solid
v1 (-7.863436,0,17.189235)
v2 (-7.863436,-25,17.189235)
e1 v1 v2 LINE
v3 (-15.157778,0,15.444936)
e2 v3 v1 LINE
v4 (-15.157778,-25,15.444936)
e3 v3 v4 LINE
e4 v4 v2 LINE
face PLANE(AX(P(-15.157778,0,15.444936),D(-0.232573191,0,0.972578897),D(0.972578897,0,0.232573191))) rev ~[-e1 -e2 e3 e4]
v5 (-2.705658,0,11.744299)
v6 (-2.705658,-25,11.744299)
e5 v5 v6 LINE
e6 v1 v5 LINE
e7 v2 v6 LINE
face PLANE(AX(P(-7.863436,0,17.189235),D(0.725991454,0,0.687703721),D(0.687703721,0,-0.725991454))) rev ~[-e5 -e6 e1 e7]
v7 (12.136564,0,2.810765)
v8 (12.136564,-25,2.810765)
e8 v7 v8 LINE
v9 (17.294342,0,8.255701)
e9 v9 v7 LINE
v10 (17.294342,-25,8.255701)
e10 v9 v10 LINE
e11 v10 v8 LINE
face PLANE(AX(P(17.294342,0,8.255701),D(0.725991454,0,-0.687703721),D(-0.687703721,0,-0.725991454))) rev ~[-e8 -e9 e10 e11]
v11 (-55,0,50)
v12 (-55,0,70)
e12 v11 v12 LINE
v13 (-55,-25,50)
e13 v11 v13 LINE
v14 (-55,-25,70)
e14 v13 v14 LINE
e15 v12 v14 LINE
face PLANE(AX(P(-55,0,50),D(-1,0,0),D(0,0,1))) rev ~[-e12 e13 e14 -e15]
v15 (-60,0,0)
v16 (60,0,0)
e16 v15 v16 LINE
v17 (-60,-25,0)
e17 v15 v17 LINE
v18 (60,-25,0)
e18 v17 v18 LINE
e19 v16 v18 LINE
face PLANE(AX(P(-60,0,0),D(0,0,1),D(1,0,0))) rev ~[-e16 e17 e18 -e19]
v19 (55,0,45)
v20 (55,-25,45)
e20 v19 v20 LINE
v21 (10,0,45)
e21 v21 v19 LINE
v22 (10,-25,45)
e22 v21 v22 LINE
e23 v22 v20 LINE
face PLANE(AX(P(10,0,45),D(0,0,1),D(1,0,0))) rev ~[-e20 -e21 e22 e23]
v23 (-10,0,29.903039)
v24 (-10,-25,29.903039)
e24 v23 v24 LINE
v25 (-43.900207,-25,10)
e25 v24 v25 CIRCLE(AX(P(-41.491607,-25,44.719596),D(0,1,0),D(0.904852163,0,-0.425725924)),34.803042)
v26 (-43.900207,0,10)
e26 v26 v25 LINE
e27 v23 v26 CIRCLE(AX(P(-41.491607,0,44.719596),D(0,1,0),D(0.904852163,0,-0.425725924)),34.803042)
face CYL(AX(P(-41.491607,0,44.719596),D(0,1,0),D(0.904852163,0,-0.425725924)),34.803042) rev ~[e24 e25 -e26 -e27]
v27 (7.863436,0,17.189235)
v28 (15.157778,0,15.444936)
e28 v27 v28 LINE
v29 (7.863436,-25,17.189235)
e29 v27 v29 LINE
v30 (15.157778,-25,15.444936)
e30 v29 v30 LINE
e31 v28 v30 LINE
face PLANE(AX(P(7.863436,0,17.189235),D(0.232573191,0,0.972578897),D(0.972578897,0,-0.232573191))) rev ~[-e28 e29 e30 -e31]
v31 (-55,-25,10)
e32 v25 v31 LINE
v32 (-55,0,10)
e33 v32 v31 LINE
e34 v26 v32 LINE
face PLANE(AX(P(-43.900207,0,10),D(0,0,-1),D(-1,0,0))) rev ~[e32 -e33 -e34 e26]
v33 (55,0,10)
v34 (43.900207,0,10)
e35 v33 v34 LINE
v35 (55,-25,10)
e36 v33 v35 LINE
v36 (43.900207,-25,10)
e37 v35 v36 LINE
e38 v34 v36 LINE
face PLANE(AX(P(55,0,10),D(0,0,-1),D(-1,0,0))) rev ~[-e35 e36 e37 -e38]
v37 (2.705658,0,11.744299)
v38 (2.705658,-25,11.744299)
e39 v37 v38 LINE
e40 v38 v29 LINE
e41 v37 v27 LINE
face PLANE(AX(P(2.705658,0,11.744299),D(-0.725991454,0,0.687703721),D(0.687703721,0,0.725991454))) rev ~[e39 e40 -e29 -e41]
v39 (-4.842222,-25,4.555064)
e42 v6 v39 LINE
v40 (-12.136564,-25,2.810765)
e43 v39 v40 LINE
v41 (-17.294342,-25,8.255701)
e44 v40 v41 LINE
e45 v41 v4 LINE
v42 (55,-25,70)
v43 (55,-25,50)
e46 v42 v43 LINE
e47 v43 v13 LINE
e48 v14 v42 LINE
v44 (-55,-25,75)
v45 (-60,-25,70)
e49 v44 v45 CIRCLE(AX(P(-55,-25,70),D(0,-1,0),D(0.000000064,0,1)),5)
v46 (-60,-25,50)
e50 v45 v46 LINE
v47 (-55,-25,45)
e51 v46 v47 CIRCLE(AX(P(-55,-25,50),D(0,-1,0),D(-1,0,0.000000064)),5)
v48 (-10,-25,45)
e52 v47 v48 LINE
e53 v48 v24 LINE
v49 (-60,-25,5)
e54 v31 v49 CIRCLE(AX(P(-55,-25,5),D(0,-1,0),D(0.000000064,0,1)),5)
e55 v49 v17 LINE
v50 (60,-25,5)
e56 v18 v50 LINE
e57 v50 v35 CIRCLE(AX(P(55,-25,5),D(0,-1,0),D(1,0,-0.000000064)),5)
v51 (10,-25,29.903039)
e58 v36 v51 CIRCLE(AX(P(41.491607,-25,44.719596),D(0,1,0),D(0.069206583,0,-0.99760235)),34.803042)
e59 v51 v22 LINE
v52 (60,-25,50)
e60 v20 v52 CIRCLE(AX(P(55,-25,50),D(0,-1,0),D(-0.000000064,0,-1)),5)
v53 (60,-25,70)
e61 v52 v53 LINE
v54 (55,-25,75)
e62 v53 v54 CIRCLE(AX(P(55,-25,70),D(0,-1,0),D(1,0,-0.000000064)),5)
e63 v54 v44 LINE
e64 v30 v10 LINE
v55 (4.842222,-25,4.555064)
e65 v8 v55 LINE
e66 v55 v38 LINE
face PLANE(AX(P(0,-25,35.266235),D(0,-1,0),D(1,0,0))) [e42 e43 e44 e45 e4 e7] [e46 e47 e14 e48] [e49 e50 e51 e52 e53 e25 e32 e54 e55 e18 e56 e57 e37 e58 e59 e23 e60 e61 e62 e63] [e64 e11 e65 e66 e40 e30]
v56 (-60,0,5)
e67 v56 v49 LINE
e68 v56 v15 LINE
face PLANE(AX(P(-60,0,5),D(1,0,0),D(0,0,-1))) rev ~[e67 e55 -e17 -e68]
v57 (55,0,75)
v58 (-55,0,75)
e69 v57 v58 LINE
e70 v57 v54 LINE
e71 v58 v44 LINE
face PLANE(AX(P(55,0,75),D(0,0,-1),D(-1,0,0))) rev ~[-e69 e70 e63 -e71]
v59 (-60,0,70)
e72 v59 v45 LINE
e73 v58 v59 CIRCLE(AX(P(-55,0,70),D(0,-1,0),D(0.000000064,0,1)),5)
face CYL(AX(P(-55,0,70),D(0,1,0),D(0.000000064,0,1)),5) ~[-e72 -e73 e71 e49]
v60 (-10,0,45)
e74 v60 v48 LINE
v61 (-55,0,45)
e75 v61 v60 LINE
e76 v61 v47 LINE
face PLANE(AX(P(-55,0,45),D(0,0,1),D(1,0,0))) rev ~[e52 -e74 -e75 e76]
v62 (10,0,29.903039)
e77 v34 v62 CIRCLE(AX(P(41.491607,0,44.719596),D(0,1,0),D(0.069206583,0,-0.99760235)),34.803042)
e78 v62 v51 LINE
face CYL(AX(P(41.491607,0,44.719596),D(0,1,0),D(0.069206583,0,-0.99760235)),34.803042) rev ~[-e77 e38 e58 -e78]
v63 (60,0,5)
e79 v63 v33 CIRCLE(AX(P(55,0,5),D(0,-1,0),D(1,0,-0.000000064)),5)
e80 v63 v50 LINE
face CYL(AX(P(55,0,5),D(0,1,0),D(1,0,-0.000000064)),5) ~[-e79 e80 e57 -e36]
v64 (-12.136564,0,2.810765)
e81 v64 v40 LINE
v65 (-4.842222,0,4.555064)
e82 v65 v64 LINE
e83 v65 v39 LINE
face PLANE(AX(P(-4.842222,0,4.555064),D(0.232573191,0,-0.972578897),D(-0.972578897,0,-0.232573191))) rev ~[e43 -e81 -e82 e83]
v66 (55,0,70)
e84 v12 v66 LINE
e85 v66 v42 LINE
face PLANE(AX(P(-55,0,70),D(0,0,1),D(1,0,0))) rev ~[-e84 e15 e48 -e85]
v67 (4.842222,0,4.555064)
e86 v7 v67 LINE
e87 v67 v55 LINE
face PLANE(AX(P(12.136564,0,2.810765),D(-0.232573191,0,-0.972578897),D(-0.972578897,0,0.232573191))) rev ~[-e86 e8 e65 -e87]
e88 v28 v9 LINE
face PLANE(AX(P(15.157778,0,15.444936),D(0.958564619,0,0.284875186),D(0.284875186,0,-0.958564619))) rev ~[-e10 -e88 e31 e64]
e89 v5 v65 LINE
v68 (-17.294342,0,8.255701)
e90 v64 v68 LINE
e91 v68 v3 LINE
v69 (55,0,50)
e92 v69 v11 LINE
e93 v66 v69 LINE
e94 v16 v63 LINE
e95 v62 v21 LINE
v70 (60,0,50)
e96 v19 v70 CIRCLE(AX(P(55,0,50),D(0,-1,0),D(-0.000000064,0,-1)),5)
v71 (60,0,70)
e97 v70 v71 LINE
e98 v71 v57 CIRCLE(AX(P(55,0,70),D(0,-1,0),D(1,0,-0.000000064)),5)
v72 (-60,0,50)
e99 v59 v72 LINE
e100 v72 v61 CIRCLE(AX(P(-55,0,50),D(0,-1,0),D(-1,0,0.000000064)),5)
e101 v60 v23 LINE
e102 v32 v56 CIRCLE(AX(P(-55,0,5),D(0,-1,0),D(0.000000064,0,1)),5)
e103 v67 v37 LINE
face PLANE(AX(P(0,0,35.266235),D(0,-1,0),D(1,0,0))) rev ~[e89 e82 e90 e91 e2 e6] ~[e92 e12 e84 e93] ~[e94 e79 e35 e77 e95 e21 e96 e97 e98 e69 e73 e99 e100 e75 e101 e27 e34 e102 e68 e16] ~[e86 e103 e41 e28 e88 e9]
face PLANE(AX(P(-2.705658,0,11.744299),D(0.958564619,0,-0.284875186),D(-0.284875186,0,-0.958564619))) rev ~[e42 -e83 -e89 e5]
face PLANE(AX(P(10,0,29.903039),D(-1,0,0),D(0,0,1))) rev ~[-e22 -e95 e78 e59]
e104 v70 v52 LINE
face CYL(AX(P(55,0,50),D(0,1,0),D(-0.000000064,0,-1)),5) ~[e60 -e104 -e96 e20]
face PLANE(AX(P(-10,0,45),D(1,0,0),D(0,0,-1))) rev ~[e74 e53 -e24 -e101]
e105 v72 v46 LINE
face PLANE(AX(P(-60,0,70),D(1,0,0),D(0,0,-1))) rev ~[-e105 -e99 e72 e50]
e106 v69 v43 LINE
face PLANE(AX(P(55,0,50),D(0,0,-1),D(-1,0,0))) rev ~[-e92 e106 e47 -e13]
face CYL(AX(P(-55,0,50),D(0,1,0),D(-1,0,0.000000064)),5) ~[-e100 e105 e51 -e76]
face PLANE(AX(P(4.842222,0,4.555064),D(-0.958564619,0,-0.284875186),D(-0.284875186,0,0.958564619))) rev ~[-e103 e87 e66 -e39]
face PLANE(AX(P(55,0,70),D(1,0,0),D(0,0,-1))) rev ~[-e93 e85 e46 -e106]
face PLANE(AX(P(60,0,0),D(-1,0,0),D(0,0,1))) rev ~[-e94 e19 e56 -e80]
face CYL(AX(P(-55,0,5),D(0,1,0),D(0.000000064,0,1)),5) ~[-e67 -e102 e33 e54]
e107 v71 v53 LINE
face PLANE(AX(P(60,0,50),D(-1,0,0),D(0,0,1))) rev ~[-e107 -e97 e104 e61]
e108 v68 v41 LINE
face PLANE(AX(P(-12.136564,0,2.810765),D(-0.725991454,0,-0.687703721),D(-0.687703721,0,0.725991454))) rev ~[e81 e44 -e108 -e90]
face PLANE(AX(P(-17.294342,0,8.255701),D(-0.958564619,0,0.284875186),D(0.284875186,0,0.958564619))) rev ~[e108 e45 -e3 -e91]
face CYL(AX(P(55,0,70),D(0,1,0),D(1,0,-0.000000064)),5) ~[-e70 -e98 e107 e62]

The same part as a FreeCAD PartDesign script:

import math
import FreeCAD as App
import Part
import Sketcher


def add_polygon(sketch, points):
    """Adds a closed chain of lines whose ends are joined by coincident constraints."""
    first, n = sketch.GeometryCount, len(points)
    for a, b in zip(points, points[1:] + points[:1]):
        sketch.addGeometry(Part.LineSegment(App.Vector(*a, 0), App.Vector(*b, 0)), False)
    for i in range(n):
        sketch.addConstraint(Sketcher.Constraint("Coincident", first + i, 2, first + (i + 1) % n, 1))

doc = App.newDocument("Part")
body = doc.addObject("PartDesign::Body", "Body")

sketch1 = doc.addObject("Sketcher::SketchObject", "Sketch")
body.addObject(sketch1)
sketch1.AttachmentSupport = (doc.XZ_Plane, [""])
sketch1.MapMode = "FlatFace"
sketch1.addGeometry(Part.LineSegment(App.Vector(-60, 0, 0), App.Vector(60, 0, 0)), False)
sketch1.addGeometry(Part.LineSegment(App.Vector(60, 0, 0), App.Vector(60, 5, 0)), False)
sketch1.addGeometry(Part.ArcOfCircle(Part.Circle(App.Vector(55, 5, 0), App.Vector(0, 0, 1), 5), math.radians(0), math.radians(90)), False)
sketch1.addGeometry(Part.LineSegment(App.Vector(55, 10, 0), App.Vector(43.9, 10, 0)), False)
sketch1.addGeometry(Part.ArcOfCircle(Part.Circle(App.Vector(41.5, 44.7, 0), App.Vector(0, 0, 1), 34.8), math.radians(-155), math.radians(-86)), False)
sketch1.addGeometry(Part.LineSegment(App.Vector(10, 29.9, 0), App.Vector(10, 45, 0)), False)
sketch1.addGeometry(Part.LineSegment(App.Vector(10, 45, 0), App.Vector(55, 45, 0)), False)
sketch1.addGeometry(Part.ArcOfCircle(Part.Circle(App.Vector(55, 50, 0), App.Vector(0, 0, 1), 5), math.radians(-90), math.radians(0)), False)
sketch1.addGeometry(Part.LineSegment(App.Vector(60, 50, 0), App.Vector(60, 70, 0)), False)
sketch1.addGeometry(Part.ArcOfCircle(Part.Circle(App.Vector(55, 70, 0), App.Vector(0, 0, 1), 5), math.radians(0), math.radians(90)), False)
sketch1.addGeometry(Part.LineSegment(App.Vector(55, 75, 0), App.Vector(-55, 75, 0)), False)
sketch1.addGeometry(Part.ArcOfCircle(Part.Circle(App.Vector(-55, 70, 0), App.Vector(0, 0, 1), 5), math.radians(90), math.radians(180)), False)
sketch1.addGeometry(Part.LineSegment(App.Vector(-60, 70, 0), App.Vector(-60, 50, 0)), False)
sketch1.addGeometry(Part.ArcOfCircle(Part.Circle(App.Vector(-55, 50, 0), App.Vector(0, 0, 1), 5), math.radians(180), math.radians(270)), False)
sketch1.addGeometry(Part.LineSegment(App.Vector(-55, 45, 0), App.Vector(-10, 45, 0)), False)
sketch1.addGeometry(Part.LineSegment(App.Vector(-10, 45, 0), App.Vector(-10, 29.9, 0)), False)
sketch1.addGeometry(Part.ArcOfCircle(Part.Circle(App.Vector(-41.5, 44.7, 0), App.Vector(0, 0, 1), 34.8), math.radians(-94), math.radians(-25)), False)
sketch1.addGeometry(Part.LineSegment(App.Vector(-43.9, 10, 0), App.Vector(-55, 10, 0)), False)
sketch1.addGeometry(Part.ArcOfCircle(Part.Circle(App.Vector(-55, 5, 0), App.Vector(0, 0, 1), 5), math.radians(90), math.radians(180)), False)
sketch1.addGeometry(Part.LineSegment(App.Vector(-60, 5, 0), App.Vector(-60, 0, 0)), False)
add_polygon(sketch1, [(-4.8, 4.6), (-12.1, 2.8), (-17.3, 8.3), (-15.2, 15.4), (-7.9, 17.2), (-2.7, 11.7)])
add_polygon(sketch1, [(7.9, 17.2), (15.2, 15.4), (17.3, 8.3), (12.1, 2.8), (4.8, 4.6), (2.7, 11.7)])
add_polygon(sketch1, [(-55, 50), (-55, 70), (55, 70), (55, 50)])
sketch1.addConstraint([
    Sketcher.Constraint("Coincident", 0, 2, 1, 1),
    Sketcher.Constraint("Tangent", 1, 2, 2, 1),
    Sketcher.Constraint("Tangent", 2, 2, 3, 1),
    Sketcher.Constraint("Coincident", 3, 2, 4, 2),
    Sketcher.Constraint("Coincident", 4, 1, 5, 1),
    Sketcher.Constraint("Coincident", 5, 2, 6, 1),
    Sketcher.Constraint("Tangent", 6, 2, 7, 1),
    Sketcher.Constraint("Tangent", 7, 2, 8, 1),
    Sketcher.Constraint("Tangent", 8, 2, 9, 1),
    Sketcher.Constraint("Tangent", 9, 2, 10, 1),
    Sketcher.Constraint("Tangent", 10, 2, 11, 1),
    Sketcher.Constraint("Tangent", 11, 2, 12, 1),
    Sketcher.Constraint("Tangent", 12, 2, 13, 1),
    Sketcher.Constraint("Tangent", 13, 2, 14, 1),
    Sketcher.Constraint("Coincident", 14, 2, 15, 1),
    Sketcher.Constraint("Coincident", 15, 2, 16, 2),
    Sketcher.Constraint("Coincident", 16, 1, 17, 1),
    Sketcher.Constraint("Tangent", 17, 2, 18, 1),
    Sketcher.Constraint("Tangent", 18, 2, 19, 1),
    Sketcher.Constraint("Coincident", 19, 2, 0, 1),
    Sketcher.Constraint("Horizontal", 0),
    Sketcher.Constraint("Vertical", 1),
    Sketcher.Constraint("Horizontal", 3),
    Sketcher.Constraint("Vertical", 5),
    Sketcher.Constraint("Horizontal", 6),
    Sketcher.Constraint("Vertical", 8),
    Sketcher.Constraint("Horizontal", 10),
    Sketcher.Constraint("Vertical", 12),
    Sketcher.Constraint("Horizontal", 14),
    Sketcher.Constraint("Vertical", 15),
    Sketcher.Constraint("Horizontal", 17),
    Sketcher.Constraint("Vertical", 19),
    Sketcher.Constraint("Vertical", 32),
    Sketcher.Constraint("Horizontal", 33),
    Sketcher.Constraint("Vertical", 34),
    Sketcher.Constraint("Horizontal", 35),
    Sketcher.Constraint("Coincident", 32, 2, 11, 3),
    Sketcher.Constraint("Coincident", 33, 2, 9, 3),
    Sketcher.Constraint("Coincident", 34, 2, 7, 3),
    Sketcher.Constraint("Coincident", 35, 2, 13, 3),
    Sketcher.Constraint("Equal", 2, 7),
    Sketcher.Constraint("Equal", 4, 16),
    Sketcher.Constraint("Equal", 13, 18),
    Sketcher.Constraint("Symmetric", 0, 2, 19, 2, -1, 1),
    Sketcher.Constraint("Symmetric", 4, 3, 16, 3, -2),
    Sketcher.Constraint("Symmetric", 22, 2, 26, 2, -2),
    Sketcher.Constraint("Symmetric", 21, 2, 27, 2, -2),
    Sketcher.Constraint("Symmetric", 20, 2, 28, 2, -2),
    Sketcher.Constraint("Symmetric", 25, 2, 29, 2, -2),
    Sketcher.Constraint("Symmetric", 24, 2, 30, 2, -2),
    Sketcher.Constraint("Symmetric", 23, 2, 31, 2, -2),
    Sketcher.Constraint("Parallel", 20, 23),
    Sketcher.Constraint("Parallel", 21, 24),
    Sketcher.Constraint("Parallel", 22, 25),
    Sketcher.Constraint("Horizontal", 2, 3, 18, 3),
    Sketcher.Constraint("Horizontal", 4, 1, 15, 2),
    Sketcher.Constraint("Vertical", 2, 3, 7, 3),
    Sketcher.Constraint("Vertical", 13, 3, 18, 3),
    Sketcher.Constraint("Equal", 20, 21),
    Sketcher.Constraint("Equal", 21, 22),
    Sketcher.Constraint("Equal", 22, 23),
    Sketcher.Constraint("Radius", 2, 5.0),
    Sketcher.Constraint("DistanceX", 0, 1, 0, 2, 120.0),
    Sketcher.Constraint("DistanceX", 6, 1, 6, 2, 45.0),
    Sketcher.Constraint("DistanceY", 1, 1, 1, 2, 5.0),
    Sketcher.Constraint("DistanceY", 8, 1, 8, 2, 20.0),
    Sketcher.Constraint("DistanceY", -1, 1, 7, 3, 50.0),
    Sketcher.Constraint("DistanceX", 25, 2, 26, 2, 20.0),
    Sketcher.Constraint("Distance", 20, 7.5),
    Sketcher.Constraint("Radius", 4, 34.803042),
    Sketcher.Constraint("DistanceY", 5, 1, 5, 2, 15.096961),
    Sketcher.Constraint("DistanceY", -1, 1, 21, 2, 8.255701),
    Sketcher.Constraint("DistanceY", -1, 1, 24, 2, 11.744299),
    Sketcher.Constraint("DistanceX", 4, 3, 3, 2, 2.4086),
    Sketcher.Constraint("DistanceY", 22, 2, 23, 2, 1.744299),
    Sketcher.Constraint("DistanceX", 24, 2, -1, 1, 2.705658),
])
pad1 = doc.addObject("PartDesign::Pad", "Pad")
body.addObject(pad1)
pad1.Profile = sketch1
pad1.Length = 25

doc.recompute()
